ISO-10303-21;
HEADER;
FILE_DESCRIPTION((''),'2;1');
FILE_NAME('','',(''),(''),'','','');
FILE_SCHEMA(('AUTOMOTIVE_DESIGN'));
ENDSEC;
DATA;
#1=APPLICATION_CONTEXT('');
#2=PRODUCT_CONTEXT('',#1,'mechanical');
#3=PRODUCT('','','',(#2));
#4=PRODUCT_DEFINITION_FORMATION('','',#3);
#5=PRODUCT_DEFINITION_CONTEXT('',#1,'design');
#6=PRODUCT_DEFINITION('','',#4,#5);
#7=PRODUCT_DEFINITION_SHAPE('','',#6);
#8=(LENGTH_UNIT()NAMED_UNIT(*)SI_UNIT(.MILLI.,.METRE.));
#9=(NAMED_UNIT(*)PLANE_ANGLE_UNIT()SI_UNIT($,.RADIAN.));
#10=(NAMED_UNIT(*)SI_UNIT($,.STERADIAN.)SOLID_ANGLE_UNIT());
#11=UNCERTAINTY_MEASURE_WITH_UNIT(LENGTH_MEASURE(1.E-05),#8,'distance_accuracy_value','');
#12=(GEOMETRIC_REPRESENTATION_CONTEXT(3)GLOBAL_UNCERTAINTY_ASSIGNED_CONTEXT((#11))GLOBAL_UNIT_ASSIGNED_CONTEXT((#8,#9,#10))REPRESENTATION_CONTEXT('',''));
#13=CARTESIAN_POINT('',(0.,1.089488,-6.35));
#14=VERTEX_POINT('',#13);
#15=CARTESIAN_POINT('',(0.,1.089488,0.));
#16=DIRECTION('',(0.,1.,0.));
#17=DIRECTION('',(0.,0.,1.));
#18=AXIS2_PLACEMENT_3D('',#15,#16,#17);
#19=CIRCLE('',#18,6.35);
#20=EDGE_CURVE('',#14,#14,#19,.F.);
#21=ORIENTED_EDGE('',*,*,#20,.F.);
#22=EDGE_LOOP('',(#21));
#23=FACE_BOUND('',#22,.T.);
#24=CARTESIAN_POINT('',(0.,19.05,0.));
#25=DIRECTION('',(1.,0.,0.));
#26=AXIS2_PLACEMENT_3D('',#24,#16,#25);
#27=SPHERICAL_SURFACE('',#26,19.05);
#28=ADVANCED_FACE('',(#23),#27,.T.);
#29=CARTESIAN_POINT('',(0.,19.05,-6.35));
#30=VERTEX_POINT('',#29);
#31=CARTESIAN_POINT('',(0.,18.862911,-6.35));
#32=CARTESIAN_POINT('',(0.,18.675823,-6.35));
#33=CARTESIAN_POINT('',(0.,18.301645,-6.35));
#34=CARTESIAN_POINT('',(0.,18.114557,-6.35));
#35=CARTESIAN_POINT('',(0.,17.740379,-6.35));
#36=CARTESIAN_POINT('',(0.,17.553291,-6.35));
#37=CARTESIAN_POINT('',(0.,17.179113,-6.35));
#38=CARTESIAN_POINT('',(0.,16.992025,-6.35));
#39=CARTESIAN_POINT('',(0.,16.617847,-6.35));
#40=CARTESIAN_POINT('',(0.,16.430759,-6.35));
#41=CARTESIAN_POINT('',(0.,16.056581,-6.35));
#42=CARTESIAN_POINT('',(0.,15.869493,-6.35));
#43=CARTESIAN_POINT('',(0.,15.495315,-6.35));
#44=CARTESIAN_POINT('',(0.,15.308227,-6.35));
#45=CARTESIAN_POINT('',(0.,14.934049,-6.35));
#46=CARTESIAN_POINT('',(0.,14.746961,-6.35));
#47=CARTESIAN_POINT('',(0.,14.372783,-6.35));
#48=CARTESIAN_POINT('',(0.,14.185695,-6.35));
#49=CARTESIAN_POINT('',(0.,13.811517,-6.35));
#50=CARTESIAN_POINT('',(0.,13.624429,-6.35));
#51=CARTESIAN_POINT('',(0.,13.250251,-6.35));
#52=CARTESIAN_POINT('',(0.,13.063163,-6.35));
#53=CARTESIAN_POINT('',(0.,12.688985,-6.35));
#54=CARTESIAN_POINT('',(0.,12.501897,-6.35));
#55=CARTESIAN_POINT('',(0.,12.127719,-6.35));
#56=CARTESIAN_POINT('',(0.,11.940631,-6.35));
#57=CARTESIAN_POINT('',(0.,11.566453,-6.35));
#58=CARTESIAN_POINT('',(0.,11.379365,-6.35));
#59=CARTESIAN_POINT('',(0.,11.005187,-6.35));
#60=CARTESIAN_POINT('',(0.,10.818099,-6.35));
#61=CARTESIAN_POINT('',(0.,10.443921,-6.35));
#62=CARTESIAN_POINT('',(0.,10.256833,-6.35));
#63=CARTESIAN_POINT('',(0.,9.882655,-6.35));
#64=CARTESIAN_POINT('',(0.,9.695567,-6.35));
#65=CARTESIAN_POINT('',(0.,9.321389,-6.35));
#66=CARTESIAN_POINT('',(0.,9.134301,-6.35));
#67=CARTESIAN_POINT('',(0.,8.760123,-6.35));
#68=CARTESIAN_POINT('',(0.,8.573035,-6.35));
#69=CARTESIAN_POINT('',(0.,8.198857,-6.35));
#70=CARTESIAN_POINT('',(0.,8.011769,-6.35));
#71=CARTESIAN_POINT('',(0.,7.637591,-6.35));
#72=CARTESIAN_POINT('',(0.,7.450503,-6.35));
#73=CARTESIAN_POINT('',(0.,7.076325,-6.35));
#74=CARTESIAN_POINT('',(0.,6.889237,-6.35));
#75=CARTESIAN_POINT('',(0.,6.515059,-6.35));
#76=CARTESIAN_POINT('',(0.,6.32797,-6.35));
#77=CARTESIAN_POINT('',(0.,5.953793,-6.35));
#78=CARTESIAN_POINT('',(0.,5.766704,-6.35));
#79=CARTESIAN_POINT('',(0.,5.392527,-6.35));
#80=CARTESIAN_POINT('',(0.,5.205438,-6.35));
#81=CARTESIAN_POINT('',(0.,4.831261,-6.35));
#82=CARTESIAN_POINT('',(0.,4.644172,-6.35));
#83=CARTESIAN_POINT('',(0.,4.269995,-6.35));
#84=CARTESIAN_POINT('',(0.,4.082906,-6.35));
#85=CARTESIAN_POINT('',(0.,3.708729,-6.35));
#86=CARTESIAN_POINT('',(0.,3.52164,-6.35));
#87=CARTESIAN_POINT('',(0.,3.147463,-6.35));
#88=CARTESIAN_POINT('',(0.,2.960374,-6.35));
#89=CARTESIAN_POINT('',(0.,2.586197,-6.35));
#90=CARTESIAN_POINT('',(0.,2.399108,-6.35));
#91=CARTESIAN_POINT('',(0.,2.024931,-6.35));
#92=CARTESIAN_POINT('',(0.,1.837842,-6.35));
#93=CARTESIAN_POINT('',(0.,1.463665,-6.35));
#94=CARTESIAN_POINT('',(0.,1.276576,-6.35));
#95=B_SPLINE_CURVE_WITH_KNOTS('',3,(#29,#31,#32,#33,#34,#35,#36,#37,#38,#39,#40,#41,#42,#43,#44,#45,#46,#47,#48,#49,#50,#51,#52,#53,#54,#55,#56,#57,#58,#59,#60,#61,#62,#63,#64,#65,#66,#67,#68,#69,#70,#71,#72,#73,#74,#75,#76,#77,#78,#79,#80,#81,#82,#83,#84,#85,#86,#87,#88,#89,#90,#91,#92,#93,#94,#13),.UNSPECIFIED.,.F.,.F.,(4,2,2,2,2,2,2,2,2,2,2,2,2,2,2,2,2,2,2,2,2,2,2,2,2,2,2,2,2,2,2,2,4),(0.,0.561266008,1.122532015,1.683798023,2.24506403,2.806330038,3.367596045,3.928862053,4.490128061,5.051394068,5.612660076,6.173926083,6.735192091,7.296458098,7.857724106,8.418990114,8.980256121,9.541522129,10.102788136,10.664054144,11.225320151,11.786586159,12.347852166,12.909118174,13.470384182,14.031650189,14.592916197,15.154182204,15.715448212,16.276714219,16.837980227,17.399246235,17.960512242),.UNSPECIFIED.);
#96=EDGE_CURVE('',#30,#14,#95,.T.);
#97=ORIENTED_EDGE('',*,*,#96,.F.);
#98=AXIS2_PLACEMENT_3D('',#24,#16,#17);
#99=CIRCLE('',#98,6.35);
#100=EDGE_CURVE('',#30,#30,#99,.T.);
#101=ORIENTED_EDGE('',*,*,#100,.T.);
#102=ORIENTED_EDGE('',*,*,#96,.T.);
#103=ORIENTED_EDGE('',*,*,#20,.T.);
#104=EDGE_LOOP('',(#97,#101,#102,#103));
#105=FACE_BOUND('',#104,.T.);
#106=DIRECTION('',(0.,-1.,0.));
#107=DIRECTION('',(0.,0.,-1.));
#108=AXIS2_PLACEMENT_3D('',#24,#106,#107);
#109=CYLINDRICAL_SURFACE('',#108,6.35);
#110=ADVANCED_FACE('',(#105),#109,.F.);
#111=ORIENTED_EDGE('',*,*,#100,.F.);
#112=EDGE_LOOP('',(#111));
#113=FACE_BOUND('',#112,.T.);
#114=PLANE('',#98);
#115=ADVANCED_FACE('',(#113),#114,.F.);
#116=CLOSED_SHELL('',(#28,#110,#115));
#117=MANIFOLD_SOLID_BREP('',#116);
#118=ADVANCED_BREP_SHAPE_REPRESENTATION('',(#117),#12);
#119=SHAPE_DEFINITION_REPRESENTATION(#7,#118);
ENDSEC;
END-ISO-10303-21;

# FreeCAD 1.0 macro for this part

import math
import FreeCAD as App
import Part
import Sketcher
Q = App.Units.Quantity

doc = App.newDocument("Part")
params = doc.addObject("Spreadsheet::Sheet", "Params")
for row, (alias, value) in enumerate([
    ("sketch1_radius", "0.75 in"),
    ("revolution_angle", "360 deg"),
    ("sketch2_diameter", "0.5 in"),
    ("pocket1_length", "0.75 in"),
], start=1):
    params.set(f"A{row}", alias)
    params.set(f"B{row}", "=" + value)
    params.setAlias(f"B{row}", alias)

body = doc.addObject("PartDesign::Body", "Body")

# Sketch on XY plane
sketch1 = body.newObject("Sketcher::SketchObject", "Sketch")
sketch1.AttachmentSupport = (doc.getObject("XY_Plane"), [""])
sketch1.MapMode = "FlatFace"
sketch1.addGeometry([
    Part.LineSegment(App.Vector(0, 38, 0), App.Vector(0, 0, 0)),
    Part.ArcOfCircle(Part.Circle(App.Vector(0, 19, 0), App.Vector(0, 0, 1), 19), math.radians(-90), math.radians(90)),
], False)
sketch1.addConstraint([
    Sketcher.Constraint("Coincident", 0, 1, 1, 2),
    Sketcher.Constraint("Coincident", 1, 1, 0, 2),
    Sketcher.Constraint("Vertical", 0),
    Sketcher.Constraint("Coincident", 1, 1, -1, 1),
    Sketcher.Constraint("PointOnObject", 1, 3, -2),
    Sketcher.Constraint("Radius", 1, Q("0.75 in")),
])
sketch1.setExpression("Constraints[5]", "Params.sketch1_radius")
revolution = body.newObject("PartDesign::Revolution", "Revolution")
revolution.Profile = sketch1
revolution.ReferenceAxis = (sketch1, ["V_Axis"])
revolution.setExpression("Angle", "Params.revolution_angle")

# Sketch on XZ plane
sketch2 = body.newObject("Sketcher::SketchObject", "Sketch001")
sketch2.AttachmentSupport = (doc.getObject("XZ_Plane"), [""])
sketch2.MapMode = "FlatFace"
sketch2.addGeometry(Part.Circle(App.Vector(0, 0, 0), App.Vector(0, 0, 1), 6), False)
sketch2.addConstraint([
    Sketcher.Constraint("Coincident", 0, 3, -1, 1),
    Sketcher.Constraint("Diameter", 0, Q("0.5 in")),
])
sketch2.setExpression("Constraints[1]", "Params.sketch2_diameter")
pocket1 = body.newObject("PartDesign::Pocket", "Pocket")
pocket1.Profile = sketch2
pocket1.setExpression("Length", "Params.pocket1_length")

doc.recompute()
